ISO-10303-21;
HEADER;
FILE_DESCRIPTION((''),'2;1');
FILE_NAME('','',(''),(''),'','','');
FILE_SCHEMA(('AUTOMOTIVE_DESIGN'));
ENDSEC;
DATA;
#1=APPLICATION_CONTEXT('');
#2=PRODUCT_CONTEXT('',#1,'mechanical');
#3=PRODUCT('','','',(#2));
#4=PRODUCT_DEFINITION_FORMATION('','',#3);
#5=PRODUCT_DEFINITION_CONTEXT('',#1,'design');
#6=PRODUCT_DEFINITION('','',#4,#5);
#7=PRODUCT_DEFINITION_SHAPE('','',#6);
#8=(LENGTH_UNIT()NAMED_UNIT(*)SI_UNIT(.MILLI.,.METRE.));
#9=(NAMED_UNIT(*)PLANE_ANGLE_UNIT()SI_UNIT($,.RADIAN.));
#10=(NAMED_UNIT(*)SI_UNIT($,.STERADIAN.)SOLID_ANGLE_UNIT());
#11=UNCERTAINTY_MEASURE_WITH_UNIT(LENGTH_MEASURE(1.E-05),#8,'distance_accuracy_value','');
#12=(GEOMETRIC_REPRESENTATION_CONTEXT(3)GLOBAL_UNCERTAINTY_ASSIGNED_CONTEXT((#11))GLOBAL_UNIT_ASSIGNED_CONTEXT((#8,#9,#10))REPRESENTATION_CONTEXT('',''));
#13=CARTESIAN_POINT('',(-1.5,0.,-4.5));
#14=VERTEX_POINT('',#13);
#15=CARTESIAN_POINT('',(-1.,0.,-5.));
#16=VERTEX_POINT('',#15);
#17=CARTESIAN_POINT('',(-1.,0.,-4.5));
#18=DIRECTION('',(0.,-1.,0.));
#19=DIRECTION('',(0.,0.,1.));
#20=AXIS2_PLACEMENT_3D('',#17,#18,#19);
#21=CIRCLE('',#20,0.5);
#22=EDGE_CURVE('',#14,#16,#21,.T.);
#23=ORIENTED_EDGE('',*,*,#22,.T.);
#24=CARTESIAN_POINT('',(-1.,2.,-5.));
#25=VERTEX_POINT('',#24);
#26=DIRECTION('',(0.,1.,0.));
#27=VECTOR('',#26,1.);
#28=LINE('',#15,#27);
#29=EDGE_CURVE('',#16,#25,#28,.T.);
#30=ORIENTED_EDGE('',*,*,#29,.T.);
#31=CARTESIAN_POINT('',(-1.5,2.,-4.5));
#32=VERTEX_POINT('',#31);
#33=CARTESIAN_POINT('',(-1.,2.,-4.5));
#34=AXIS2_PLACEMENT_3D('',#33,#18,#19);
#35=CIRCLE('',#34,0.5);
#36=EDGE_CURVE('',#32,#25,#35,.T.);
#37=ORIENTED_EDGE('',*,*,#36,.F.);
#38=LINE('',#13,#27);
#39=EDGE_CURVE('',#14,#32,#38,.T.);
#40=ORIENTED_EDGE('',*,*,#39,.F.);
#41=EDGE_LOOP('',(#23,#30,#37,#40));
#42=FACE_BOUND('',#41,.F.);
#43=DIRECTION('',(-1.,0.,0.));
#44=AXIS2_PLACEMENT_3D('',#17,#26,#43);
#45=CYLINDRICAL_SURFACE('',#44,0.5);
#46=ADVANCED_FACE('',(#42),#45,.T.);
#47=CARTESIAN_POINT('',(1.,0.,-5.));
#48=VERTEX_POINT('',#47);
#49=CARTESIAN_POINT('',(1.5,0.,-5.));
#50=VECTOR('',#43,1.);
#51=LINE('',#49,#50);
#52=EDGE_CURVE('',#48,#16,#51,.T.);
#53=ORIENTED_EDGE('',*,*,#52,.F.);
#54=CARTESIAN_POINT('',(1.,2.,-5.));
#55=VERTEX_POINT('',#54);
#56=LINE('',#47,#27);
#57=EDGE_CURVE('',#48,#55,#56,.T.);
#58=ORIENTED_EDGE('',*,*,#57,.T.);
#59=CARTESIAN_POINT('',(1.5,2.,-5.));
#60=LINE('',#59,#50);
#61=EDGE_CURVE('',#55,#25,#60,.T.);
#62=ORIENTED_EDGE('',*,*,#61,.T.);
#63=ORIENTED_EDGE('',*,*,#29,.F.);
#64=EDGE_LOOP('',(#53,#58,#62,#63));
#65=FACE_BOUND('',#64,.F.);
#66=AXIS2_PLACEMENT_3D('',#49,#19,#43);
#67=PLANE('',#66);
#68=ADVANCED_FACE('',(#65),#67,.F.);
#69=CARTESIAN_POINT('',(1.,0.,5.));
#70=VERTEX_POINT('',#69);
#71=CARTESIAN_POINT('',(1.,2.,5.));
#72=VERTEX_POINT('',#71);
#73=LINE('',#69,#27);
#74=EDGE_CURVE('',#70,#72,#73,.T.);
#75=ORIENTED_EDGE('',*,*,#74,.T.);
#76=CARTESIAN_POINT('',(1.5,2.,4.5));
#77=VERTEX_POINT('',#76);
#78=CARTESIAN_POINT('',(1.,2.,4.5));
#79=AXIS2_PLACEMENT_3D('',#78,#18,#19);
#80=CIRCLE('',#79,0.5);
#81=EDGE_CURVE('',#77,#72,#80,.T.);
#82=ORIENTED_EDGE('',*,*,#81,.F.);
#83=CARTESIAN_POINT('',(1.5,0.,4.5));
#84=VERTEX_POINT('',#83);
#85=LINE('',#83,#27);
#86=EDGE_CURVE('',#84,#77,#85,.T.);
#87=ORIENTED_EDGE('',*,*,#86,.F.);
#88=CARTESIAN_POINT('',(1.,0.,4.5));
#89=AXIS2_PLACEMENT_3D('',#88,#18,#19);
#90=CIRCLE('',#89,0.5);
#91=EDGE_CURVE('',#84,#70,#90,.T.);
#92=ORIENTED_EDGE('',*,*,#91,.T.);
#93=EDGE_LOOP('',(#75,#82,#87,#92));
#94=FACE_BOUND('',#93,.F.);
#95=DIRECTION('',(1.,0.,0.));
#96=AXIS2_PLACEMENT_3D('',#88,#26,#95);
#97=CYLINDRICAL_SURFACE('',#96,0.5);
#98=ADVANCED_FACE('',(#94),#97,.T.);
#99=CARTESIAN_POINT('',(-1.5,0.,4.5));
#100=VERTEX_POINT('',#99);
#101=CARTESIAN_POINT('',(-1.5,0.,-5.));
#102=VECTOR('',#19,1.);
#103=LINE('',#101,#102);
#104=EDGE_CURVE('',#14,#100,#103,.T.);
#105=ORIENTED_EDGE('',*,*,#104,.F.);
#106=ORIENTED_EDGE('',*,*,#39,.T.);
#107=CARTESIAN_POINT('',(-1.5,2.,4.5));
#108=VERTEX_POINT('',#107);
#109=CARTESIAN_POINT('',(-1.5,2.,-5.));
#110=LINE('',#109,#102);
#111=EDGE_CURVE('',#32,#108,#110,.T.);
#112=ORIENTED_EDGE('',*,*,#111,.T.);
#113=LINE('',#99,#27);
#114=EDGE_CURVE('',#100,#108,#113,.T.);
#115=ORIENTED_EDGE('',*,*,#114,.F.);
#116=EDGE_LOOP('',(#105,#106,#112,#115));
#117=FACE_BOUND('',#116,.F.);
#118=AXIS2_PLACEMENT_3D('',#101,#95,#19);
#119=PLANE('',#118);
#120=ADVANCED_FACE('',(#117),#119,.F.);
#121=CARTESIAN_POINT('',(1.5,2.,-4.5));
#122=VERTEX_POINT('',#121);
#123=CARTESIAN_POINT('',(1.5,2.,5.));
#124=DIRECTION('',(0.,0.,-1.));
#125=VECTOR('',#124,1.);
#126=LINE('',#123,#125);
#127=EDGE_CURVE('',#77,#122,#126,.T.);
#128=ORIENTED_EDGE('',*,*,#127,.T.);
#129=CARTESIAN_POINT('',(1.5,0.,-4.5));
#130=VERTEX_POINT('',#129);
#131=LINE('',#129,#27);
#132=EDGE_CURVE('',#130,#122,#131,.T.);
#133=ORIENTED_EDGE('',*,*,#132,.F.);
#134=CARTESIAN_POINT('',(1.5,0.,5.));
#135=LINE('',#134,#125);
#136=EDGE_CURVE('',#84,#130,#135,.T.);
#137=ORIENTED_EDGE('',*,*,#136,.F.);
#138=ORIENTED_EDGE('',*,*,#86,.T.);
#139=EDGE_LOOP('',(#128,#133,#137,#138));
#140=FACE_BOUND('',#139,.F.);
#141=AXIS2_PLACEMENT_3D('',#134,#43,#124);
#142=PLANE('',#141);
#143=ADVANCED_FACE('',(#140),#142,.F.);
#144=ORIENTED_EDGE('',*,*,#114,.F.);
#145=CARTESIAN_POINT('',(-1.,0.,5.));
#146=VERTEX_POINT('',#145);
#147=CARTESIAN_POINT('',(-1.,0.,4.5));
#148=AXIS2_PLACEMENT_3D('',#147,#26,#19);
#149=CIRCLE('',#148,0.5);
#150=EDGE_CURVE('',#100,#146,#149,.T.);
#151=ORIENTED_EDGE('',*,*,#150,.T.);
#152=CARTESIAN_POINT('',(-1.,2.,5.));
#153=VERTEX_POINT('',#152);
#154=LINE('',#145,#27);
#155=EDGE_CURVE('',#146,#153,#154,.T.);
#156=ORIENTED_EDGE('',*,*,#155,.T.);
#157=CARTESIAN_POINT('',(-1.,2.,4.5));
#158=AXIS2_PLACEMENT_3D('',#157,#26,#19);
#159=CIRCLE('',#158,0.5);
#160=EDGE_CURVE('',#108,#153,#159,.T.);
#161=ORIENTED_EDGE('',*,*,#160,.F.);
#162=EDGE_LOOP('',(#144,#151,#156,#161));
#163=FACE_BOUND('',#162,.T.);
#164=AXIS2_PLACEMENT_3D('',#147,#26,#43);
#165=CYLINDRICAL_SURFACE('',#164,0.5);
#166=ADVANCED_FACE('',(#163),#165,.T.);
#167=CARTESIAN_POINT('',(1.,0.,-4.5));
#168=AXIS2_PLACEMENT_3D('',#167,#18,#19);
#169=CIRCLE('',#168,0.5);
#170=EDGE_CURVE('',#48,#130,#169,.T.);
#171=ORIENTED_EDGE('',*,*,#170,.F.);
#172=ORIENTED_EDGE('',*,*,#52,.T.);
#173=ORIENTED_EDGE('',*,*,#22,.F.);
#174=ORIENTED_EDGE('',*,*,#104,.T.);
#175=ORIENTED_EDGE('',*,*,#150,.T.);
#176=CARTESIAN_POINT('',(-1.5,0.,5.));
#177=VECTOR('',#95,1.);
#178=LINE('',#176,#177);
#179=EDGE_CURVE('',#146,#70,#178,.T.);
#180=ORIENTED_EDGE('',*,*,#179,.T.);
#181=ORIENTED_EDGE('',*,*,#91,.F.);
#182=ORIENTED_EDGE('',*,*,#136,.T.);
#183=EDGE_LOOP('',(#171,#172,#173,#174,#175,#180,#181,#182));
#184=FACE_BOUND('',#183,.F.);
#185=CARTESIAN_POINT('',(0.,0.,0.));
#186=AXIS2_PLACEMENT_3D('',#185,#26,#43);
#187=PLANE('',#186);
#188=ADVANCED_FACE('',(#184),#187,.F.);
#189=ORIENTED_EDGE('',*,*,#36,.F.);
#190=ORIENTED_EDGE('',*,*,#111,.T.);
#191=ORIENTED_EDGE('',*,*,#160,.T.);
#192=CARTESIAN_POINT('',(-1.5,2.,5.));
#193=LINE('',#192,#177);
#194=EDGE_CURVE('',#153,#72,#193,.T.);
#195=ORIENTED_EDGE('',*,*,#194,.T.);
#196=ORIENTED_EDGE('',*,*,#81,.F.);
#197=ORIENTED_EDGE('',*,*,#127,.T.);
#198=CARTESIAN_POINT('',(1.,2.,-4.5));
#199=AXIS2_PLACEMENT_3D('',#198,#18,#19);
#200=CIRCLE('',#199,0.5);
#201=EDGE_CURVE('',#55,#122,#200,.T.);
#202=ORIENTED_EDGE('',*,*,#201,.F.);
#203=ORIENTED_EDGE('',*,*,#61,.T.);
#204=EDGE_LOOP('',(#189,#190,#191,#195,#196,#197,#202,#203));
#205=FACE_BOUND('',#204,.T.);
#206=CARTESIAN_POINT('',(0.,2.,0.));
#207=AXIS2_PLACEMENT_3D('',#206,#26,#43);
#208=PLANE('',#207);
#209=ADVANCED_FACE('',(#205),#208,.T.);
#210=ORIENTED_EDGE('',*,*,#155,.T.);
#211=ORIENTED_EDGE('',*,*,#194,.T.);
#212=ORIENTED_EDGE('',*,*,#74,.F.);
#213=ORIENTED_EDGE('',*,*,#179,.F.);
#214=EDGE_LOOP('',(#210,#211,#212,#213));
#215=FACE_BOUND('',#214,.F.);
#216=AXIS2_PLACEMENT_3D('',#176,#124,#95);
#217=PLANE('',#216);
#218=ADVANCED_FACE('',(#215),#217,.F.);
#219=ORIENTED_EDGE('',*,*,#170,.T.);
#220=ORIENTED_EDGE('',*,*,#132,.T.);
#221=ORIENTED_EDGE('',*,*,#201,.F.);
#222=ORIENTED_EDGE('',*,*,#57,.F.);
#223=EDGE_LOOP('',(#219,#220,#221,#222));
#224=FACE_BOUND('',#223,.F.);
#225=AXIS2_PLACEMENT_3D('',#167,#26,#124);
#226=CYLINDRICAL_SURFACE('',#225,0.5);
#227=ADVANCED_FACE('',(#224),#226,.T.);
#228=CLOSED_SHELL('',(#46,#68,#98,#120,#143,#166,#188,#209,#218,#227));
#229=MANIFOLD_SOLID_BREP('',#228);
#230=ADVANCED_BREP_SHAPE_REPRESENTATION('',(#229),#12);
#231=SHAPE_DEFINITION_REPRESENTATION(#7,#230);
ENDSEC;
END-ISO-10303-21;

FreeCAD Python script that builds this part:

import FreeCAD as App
import Part
import Sketcher

V = App.Vector


def edges_at(feature, points):
    """Names of the edges that pass closest to the given points."""
    edges = feature.Shape.Edges
    near = lambda p: min(range(len(edges)), key=lambda i: edges[i].distToShape(Part.Vertex(*p))[0])
    return sorted({f"Edge{near(p) + 1}" for p in points})

doc = App.newDocument("Part")
body = doc.addObject("PartDesign::Body", "Body")

# Sketch on XZ plane
sketch1 = body.newObject("Sketcher::SketchObject", "Sketch")
sketch1.AttachmentSupport = (doc.getObject("XZ_Plane"), [""])
sketch1.MapMode = "FlatFace"
sketch1.addGeometry([
    Part.LineSegment(V(-1.5, -5, 0), V(-1.5, 5, 0)),
    Part.LineSegment(V(-1.5, 5, 0), V(1.5, 5, 0)),
    Part.LineSegment(V(1.5, 5, 0), V(1.5, -5, 0)),
    Part.LineSegment(V(1.5, -5, 0), V(-1.5, -5, 0)),
], False)
sketch1.addConstraint([
    Sketcher.Constraint("Coincident", 0, 2, 1, 1),
    Sketcher.Constraint("Coincident", 1, 2, 2, 1),
    Sketcher.Constraint("Coincident", 2, 2, 3, 1),
    Sketcher.Constraint("Coincident", 3, 2, 0, 1),
    Sketcher.Constraint("Vertical", 0),
    Sketcher.Constraint("Horizontal", 1),
    Sketcher.Constraint("Vertical", 2),
    Sketcher.Constraint("Horizontal", 3),
    Sketcher.Constraint("Symmetric", 0, 2, 2, 2, -1, 1),
    Sketcher.Constraint("DistanceX", 1, 1, 1, 2, 3.0),
    Sketcher.Constraint("DistanceY", 0, 1, 0, 2, 10.0),
])
pad1 = body.newObject("PartDesign::Pad", "Pad")
pad1.Profile = sketch1
pad1.Length = 2
pad1.Reversed = True
doc.recompute()

fillet = body.newObject("PartDesign::Fillet", "Fillet")
fillet.Base = (pad1, edges_at(pad1, [
    (1.5, 1, 5),
    (-1.5, 1, 5),
    (1.5, 1, -5),
    (-1.5, 1, -5),
]))
fillet.Radius = 0.5

doc.recompute()
